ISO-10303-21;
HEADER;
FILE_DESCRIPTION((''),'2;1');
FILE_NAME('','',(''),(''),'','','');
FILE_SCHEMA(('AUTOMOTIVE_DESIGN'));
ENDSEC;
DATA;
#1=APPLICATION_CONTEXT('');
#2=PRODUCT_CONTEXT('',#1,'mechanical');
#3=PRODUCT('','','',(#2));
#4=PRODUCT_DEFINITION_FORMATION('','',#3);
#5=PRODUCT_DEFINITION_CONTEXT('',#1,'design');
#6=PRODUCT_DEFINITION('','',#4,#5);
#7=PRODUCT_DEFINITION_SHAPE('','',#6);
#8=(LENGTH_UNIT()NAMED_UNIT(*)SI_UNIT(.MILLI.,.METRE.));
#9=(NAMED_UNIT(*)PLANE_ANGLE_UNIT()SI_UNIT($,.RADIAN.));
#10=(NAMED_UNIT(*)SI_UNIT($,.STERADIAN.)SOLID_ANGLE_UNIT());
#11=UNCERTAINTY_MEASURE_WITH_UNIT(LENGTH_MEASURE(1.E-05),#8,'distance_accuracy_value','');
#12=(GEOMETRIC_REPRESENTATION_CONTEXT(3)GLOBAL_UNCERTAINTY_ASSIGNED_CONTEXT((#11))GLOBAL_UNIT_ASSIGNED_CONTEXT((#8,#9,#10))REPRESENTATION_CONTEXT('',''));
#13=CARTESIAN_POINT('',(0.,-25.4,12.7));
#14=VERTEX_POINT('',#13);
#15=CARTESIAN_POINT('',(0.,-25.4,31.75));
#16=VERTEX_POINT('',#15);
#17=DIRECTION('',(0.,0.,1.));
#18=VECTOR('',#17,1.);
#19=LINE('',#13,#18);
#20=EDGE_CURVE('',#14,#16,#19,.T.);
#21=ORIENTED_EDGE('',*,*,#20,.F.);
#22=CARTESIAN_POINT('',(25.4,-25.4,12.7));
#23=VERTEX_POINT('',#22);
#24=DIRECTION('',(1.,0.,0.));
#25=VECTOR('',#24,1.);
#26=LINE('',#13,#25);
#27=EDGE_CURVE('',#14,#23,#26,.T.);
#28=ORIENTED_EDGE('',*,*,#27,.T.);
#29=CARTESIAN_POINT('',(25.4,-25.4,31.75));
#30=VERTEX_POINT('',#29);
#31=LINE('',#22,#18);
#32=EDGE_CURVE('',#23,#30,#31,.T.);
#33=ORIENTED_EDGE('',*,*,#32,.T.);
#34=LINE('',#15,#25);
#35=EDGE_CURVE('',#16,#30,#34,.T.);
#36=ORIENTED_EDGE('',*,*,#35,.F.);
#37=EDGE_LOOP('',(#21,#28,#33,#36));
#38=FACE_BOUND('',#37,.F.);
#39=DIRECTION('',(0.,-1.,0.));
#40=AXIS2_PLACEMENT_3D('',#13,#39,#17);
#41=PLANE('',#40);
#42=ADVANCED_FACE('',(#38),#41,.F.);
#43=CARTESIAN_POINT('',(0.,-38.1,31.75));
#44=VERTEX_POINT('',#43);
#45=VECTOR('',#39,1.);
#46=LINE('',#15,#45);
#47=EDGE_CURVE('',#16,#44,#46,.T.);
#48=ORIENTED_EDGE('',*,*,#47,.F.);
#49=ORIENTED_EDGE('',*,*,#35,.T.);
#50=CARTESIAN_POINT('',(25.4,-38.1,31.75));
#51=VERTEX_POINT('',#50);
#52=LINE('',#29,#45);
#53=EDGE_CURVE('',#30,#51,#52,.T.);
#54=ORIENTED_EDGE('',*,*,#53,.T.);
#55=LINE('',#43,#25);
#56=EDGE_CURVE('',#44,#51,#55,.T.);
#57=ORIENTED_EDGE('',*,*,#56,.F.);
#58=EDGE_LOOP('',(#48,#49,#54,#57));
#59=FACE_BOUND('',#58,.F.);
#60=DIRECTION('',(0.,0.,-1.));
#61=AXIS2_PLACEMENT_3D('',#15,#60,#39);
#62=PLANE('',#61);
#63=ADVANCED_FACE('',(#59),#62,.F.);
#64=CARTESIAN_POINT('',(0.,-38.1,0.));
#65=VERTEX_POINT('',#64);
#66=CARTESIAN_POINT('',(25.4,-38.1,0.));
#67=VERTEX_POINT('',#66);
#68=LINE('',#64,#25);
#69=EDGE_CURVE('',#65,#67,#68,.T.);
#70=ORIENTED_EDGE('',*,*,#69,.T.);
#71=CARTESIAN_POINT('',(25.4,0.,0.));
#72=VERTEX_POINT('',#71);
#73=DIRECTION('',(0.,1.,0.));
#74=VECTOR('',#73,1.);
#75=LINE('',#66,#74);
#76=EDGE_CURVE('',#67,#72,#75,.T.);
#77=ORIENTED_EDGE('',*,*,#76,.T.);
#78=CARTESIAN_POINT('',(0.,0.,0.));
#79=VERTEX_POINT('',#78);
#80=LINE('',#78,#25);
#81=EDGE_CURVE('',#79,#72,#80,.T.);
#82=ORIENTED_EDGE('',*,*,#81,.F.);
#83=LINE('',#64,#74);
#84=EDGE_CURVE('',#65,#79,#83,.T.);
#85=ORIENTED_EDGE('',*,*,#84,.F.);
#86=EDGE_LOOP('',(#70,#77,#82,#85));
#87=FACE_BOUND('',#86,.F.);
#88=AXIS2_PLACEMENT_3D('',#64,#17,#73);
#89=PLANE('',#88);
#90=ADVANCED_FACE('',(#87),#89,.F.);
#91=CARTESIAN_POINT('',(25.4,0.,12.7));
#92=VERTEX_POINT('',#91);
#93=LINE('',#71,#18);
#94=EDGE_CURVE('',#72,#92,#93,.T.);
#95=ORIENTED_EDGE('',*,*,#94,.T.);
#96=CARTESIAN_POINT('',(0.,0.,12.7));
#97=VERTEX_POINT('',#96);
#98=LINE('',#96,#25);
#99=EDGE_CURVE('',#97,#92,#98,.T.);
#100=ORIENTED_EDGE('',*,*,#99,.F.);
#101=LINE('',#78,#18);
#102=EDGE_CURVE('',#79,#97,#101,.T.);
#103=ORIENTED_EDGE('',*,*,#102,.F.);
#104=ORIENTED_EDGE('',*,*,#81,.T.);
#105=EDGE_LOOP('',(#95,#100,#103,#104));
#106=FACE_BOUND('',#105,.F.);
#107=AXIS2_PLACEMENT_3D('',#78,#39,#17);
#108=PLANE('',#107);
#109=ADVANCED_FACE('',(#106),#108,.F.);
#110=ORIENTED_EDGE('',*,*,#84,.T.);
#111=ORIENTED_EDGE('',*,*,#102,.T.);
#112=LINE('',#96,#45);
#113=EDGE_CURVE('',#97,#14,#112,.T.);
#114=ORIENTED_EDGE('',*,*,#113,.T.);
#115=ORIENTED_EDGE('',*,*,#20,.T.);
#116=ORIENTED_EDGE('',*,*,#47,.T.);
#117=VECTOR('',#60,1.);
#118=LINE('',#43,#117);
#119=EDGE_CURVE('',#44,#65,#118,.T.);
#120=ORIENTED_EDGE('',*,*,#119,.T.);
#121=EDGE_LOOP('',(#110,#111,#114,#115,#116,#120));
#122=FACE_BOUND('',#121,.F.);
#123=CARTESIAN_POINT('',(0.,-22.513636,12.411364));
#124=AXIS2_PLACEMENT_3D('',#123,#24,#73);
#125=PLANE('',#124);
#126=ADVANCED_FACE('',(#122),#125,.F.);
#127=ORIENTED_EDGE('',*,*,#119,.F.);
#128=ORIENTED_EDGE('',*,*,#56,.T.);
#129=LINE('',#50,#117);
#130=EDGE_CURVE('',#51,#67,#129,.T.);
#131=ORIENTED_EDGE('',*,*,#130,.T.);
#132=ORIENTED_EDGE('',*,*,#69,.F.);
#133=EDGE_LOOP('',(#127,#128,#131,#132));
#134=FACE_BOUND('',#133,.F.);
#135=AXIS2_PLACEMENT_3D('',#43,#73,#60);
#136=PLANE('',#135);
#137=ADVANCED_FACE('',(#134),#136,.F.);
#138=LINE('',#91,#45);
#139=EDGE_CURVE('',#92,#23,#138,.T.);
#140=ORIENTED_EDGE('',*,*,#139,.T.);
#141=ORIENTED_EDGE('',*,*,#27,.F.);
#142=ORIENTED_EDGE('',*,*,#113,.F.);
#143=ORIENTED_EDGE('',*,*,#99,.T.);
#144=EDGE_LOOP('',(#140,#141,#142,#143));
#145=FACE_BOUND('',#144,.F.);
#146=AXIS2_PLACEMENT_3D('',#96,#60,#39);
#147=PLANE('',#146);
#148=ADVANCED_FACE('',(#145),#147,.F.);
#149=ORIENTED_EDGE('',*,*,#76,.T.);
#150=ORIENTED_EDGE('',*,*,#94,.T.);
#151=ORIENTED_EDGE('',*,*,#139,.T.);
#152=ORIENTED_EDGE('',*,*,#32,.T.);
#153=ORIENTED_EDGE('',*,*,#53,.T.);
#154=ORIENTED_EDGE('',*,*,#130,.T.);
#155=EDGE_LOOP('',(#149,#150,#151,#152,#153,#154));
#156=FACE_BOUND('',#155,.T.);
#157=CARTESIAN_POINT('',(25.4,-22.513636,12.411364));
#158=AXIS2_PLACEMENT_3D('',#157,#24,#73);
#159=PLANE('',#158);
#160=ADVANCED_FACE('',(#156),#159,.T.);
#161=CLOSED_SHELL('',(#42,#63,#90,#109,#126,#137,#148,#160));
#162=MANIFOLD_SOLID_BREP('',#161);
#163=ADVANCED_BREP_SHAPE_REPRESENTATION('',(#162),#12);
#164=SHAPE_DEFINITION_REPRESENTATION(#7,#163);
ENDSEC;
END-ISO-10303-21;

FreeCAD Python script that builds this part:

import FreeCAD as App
import Part
import Sketcher
Q = App.Units.Quantity

doc = App.newDocument("Part")
params = doc.addObject("Spreadsheet::Sheet", "Params")
for row, (alias, value) in enumerate([
    ("sketch1_width", "1 in"),
    ("sketch1_width2", "1.5 in"),
    ("sketch1_height", "0.75 in"),
    ("pad1_length", "1 in"),
    ("sketch2_width", "1 in"),
    ("sketch2_width2", "1.5 in"),
    ("sketch2_height", "0.75 in"),
    ("pad2_length", "1 in"),
], start=1):
    params.set(f"A{row}", alias)
    params.set(f"B{row}", "=" + value)
    params.setAlias(f"B{row}", alias)

body = doc.addObject("PartDesign::Body", "Body")

# Sketch on YZ plane
sketch1 = body.newObject("Sketcher::SketchObject", "Sketch")
sketch1.AttachmentSupport = (doc.getObject("YZ_Plane"), [""])
sketch1.MapMode = "FlatFace"
sketch1.addGeometry([
    Part.LineSegment(App.Vector(-38, 0, 0), App.Vector(0, 0, 0)),  # 0
    Part.LineSegment(App.Vector(0, 0, 0), App.Vector(0, 13, 0)),  # 1
    Part.LineSegment(App.Vector(0, 13, 0), App.Vector(-25, 13, 0)),  # 2
    Part.LineSegment(App.Vector(-25, 13, 0), App.Vector(-25, 32, 0)),  # 3
    Part.LineSegment(App.Vector(-25, 32, 0), App.Vector(-38, 32, 0)),  # 4
    Part.LineSegment(App.Vector(-38, 32, 0), App.Vector(-38, 0, 0)),  # 5
], False)
sketch1.addConstraint([
    Sketcher.Constraint("Coincident", 0, 2, 1, 1),
    Sketcher.Constraint("Coincident", 1, 2, 2, 1),
    Sketcher.Constraint("Coincident", 2, 2, 3, 1),
    Sketcher.Constraint("Coincident", 3, 2, 4, 1),
    Sketcher.Constraint("Coincident", 4, 2, 5, 1),
    Sketcher.Constraint("Coincident", 5, 2, 0, 1),
    Sketcher.Constraint("Horizontal", 0),
    Sketcher.Constraint("Vertical", 1),
    Sketcher.Constraint("Horizontal", 2),
    Sketcher.Constraint("Vertical", 3),
    Sketcher.Constraint("Horizontal", 4),
    Sketcher.Constraint("Vertical", 5),
    Sketcher.Constraint("Coincident", 0, 2, -1, 1),
    Sketcher.Constraint("Equal", 4, 1),
    Sketcher.Constraint("DistanceX", 2, 2, 2, 1, Q("1 in")),
    Sketcher.Constraint("DistanceX", 0, 1, 0, 2, Q("1.5 in")),
    Sketcher.Constraint("DistanceY", 3, 1, 3, 2, Q("0.75 in")),
])
sketch1.setExpression("Constraints[14]", "Params.sketch1_width")
sketch1.setExpression("Constraints[15]", "Params.sketch1_width2")
sketch1.setExpression("Constraints[16]", "Params.sketch1_height")
pad1 = body.newObject("PartDesign::Pad", "Pad")
pad1.Profile = sketch1
pad1.setExpression("Length", "Params.pad1_length")

# Sketch on YZ plane
sketch2 = body.newObject("Sketcher::SketchObject", "Sketch001")
sketch2.AttachmentSupport = (doc.getObject("YZ_Plane"), [""])
sketch2.MapMode = "FlatFace"
sketch2.addGeometry([
    Part.LineSegment(App.Vector(-38, 0, 0), App.Vector(0, 0, 0)),  # 0
    Part.LineSegment(App.Vector(0, 0, 0), App.Vector(0, 13, 0)),  # 1
    Part.LineSegment(App.Vector(0, 13, 0), App.Vector(-25, 13, 0)),  # 2
    Part.LineSegment(App.Vector(-25, 13, 0), App.Vector(-25, 32, 0)),  # 3
    Part.LineSegment(App.Vector(-25, 32, 0), App.Vector(-38, 32, 0)),  # 4
    Part.LineSegment(App.Vector(-38, 32, 0), App.Vector(-38, 0, 0)),  # 5
], False)
sketch2.addConstraint([
    Sketcher.Constraint("Coincident", 0, 2, 1, 1),
    Sketcher.Constraint("Coincident", 1, 2, 2, 1),
    Sketcher.Constraint("Coincident", 2, 2, 3, 1),
    Sketcher.Constraint("Coincident", 3, 2, 4, 1),
    Sketcher.Constraint("Coincident", 4, 2, 5, 1),
    Sketcher.Constraint("Coincident", 5, 2, 0, 1),
    Sketcher.Constraint("Horizontal", 0),
    Sketcher.Constraint("Vertical", 1),
    Sketcher.Constraint("Horizontal", 2),
    Sketcher.Constraint("Vertical", 3),
    Sketcher.Constraint("Horizontal", 4),
    Sketcher.Constraint("Vertical", 5),
    Sketcher.Constraint("Coincident", 0, 2, -1, 1),
    Sketcher.Constraint("Equal", 4, 1),
    Sketcher.Constraint("DistanceX", 2, 2, 2, 1, Q("1 in")),
    Sketcher.Constraint("DistanceX", 0, 1, 0, 2, Q("1.5 in")),
    Sketcher.Constraint("DistanceY", 3, 1, 3, 2, Q("0.75 in")),
])
sketch2.setExpression("Constraints[14]", "Params.sketch2_width")
sketch2.setExpression("Constraints[15]", "Params.sketch2_width2")
sketch2.setExpression("Constraints[16]", "Params.sketch2_height")
pad2 = body.newObject("PartDesign::Pad", "Pad001")
pad2.Profile = sketch2
pad2.setExpression("Length", "Params.pad2_length")

doc.recompute()
